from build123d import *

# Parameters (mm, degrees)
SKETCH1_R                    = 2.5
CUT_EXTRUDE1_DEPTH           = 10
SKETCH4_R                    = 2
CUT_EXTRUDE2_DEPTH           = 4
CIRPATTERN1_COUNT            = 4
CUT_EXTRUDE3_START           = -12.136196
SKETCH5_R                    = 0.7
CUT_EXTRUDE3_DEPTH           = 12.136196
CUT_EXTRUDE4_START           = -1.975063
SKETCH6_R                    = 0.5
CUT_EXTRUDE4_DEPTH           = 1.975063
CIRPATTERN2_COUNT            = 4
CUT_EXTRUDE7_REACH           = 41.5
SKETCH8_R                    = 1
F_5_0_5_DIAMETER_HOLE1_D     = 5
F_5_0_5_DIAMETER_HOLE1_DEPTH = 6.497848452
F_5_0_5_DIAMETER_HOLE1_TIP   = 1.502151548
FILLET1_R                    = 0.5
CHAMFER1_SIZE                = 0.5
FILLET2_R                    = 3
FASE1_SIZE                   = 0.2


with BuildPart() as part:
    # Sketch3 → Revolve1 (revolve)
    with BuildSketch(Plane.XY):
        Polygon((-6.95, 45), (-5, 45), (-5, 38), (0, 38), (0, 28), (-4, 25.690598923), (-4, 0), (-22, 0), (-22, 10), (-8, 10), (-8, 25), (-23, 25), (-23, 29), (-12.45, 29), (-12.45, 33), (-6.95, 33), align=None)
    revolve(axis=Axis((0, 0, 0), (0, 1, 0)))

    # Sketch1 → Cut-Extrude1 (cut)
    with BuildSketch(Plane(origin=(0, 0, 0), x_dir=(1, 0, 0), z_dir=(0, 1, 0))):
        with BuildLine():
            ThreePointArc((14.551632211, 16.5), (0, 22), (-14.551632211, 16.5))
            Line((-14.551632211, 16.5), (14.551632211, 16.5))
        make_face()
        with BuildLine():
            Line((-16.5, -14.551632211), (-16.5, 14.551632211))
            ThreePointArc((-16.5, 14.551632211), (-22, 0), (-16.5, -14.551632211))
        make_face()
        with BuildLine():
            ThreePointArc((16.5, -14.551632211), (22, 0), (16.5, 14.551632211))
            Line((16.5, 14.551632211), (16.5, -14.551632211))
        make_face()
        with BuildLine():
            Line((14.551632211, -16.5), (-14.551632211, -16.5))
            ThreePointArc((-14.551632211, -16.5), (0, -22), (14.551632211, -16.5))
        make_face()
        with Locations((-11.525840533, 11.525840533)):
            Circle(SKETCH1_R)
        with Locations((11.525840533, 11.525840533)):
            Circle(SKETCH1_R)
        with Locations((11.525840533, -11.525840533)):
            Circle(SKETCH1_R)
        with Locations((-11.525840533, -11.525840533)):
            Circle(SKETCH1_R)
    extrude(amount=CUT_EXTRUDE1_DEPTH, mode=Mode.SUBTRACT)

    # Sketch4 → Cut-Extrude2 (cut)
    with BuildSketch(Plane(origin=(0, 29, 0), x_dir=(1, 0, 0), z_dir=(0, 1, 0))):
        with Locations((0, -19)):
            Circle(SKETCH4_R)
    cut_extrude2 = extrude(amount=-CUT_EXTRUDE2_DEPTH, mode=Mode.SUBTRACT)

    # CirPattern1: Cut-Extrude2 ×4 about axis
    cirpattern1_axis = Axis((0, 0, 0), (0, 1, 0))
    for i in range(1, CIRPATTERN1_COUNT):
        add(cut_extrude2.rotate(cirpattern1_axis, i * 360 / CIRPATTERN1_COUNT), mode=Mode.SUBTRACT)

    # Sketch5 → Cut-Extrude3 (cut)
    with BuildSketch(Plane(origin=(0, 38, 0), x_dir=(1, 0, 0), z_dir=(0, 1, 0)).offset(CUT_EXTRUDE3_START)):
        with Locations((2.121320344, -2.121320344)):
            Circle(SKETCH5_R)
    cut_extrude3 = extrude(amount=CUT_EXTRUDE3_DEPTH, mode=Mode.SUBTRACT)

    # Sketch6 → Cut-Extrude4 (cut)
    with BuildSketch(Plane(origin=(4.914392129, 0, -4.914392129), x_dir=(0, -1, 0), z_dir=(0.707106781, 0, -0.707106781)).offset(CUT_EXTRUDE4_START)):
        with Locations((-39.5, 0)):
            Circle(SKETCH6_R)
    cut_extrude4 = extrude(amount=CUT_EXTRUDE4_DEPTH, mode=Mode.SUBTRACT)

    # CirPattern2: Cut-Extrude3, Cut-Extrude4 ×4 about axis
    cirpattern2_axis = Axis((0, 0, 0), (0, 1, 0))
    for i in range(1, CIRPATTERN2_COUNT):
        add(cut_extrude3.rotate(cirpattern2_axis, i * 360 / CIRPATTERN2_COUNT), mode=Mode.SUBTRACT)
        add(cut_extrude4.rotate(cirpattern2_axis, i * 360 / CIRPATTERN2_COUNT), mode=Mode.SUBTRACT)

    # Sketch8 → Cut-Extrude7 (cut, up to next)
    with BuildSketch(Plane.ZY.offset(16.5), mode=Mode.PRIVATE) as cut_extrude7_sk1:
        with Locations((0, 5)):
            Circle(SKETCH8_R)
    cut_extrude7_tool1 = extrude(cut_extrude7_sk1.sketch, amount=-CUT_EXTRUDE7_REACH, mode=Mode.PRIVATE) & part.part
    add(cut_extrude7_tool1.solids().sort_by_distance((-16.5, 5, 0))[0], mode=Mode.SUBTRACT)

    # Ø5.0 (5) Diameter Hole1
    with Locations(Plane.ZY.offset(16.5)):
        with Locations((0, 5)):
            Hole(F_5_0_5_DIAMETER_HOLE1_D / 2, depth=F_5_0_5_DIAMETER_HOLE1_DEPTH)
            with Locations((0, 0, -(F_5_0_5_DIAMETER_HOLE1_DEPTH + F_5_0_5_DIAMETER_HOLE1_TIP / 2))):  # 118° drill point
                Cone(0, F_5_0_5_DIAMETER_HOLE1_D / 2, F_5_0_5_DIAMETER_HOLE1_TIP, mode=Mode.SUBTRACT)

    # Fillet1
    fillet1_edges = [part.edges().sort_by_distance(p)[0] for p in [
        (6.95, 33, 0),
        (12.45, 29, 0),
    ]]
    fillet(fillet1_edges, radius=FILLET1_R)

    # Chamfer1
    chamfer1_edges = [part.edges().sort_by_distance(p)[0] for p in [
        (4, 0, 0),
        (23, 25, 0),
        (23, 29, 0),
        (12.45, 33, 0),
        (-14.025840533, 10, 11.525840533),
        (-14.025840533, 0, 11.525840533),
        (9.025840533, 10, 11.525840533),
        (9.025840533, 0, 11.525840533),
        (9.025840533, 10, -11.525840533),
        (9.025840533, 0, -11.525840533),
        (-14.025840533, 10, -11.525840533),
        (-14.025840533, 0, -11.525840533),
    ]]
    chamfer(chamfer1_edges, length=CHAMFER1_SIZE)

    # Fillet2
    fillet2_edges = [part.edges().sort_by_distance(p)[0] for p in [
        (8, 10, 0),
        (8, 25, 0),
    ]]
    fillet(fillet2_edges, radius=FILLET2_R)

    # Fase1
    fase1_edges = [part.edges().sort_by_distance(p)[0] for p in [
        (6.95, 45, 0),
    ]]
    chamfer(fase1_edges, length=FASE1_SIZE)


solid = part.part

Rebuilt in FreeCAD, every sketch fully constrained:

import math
import FreeCAD as App
import Part
import Sketcher
from FreeCAD import Vector
Q = App.Units.Quantity


def edges_at(feature, points):
    """Names of the edges that pass closest to the given points."""
    edges = feature.Shape.Edges
    near = lambda p: min(range(len(edges)), key=lambda i: edges[i].distToShape(Part.Vertex(*p))[0])
    return sorted({f"Edge{near(p) + 1}" for p in points})


def add_polygon(sketch, points):
    """Adds a closed chain of lines whose ends are joined by coincident constraints."""
    first, n = sketch.GeometryCount, len(points)
    for a, b in zip(points, points[1:] + points[:1]):
        sketch.addGeometry(Part.LineSegment(App.Vector(*a, 0), App.Vector(*b, 0)), False)
    for i in range(n):
        sketch.addConstraint(Sketcher.Constraint("Coincident", first + i, 2, first + (i + 1) % n, 1))

doc = App.newDocument("Part")
body = doc.addObject("PartDesign::Body", "Body")

# Sketch on XY plane
sketch1 = body.newObject("Sketcher::SketchObject", "Sketch")
sketch1.AttachmentSupport = (doc.getObject("XY_Plane"), [""])
sketch1.MapMode = "FlatFace"
add_polygon(sketch1, [(-5, 45), (-6.95, 45), (-6.95, 33), (-12.45, 33), (-12.45, 29), (-23, 29), (-23, 25), (-8, 25), (-8, 10), (-22, 10), (-22, 0), (-4, 0), (-4, 25.690599), (0, 28), (0, 38), (-5, 38)])  # lines 0-15
sketch1.addConstraint([
    Sketcher.Constraint("Horizontal", 0),
    Sketcher.Constraint("Vertical", 1),
    Sketcher.Constraint("Horizontal", 2),
    Sketcher.Constraint("Vertical", 3),
    Sketcher.Constraint("Horizontal", 4),
    Sketcher.Constraint("Vertical", 5),
    Sketcher.Constraint("Horizontal", 6),
    Sketcher.Constraint("Vertical", 7),
    Sketcher.Constraint("Horizontal", 8),
    Sketcher.Constraint("Vertical", 9),
    Sketcher.Constraint("Horizontal", 10),
    Sketcher.Constraint("Vertical", 11),
    Sketcher.Constraint("Vertical", 13),
    Sketcher.Constraint("Horizontal", 14),
    Sketcher.Constraint("Vertical", 15),
    Sketcher.Constraint("PointOnObject", 9, 2, -1),
    Sketcher.Constraint("PointOnObject", 12, 2, -2),
    Sketcher.Constraint("Equal", 3, 5),
    Sketcher.Constraint("Equal", 6, 7),
    Sketcher.Constraint("Equal", 9, 13),
    Sketcher.Constraint("DistanceX", 6, 1, 6, 2, 15.0),
    Sketcher.Constraint("DistanceX", 8, 2, 8, 1, 14.0),
    Sketcher.Constraint("DistanceX", 10, 1, 10, 2, 18.0),
    Sketcher.Constraint("DistanceX", 14, 2, 14, 1, 5.0),
    Sketcher.Constraint("DistanceY", 1, 2, 1, 1, 12.0),
    Sketcher.Constraint("DistanceY", 3, 2, 3, 1, 4.0),
    Sketcher.Constraint("DistanceY", 9, 2, 9, 1, 10.0),
    Sketcher.Constraint("DistanceY", 15, 1, 15, 2, 7.0),
    Sketcher.Constraint("Angle", 12, Q("30 deg")),
    Sketcher.Constraint("DistanceX", 2, 2, 2, 1, 5.5),
    Sketcher.Constraint("DistanceX", 4, 2, -1, 1, 23.0),
    Sketcher.Constraint("DistanceX", 0, 2, 0, 1, 1.95),
])
revolution = body.newObject("PartDesign::Revolution", "Revolution")
revolution.Profile = sketch1
revolution.ReferenceAxis = (sketch1, ["V_Axis"])
revolution.Angle = 360

# Sketch on XZ plane
sketch2 = body.newObject("Sketcher::SketchObject", "Sketch001")
sketch2.AttachmentSupport = (doc.getObject("XZ_Plane"), [""])
sketch2.MapMode = "FlatFace"
sketch2.addGeometry([
    Part.ArcOfCircle(Part.Circle(Vector(0, 0, 0), Vector(0, 0, 1), 22), math.radians(-131.409622), math.radians(-48.590378)),  # 0
    Part.LineSegment(Vector(-14.551632, -16.5, 0), Vector(14.551632, -16.5, 0)),  # 1
    Part.LineSegment(Vector(-16.5, 14.551632, 0), Vector(-16.5, -14.551632, 0)),  # 2
    Part.ArcOfCircle(Part.Circle(Vector(0, 0, 0), Vector(0, 0, 1), 22), math.radians(138.590378), math.radians(221.409622)),  # 3
    Part.ArcOfCircle(Part.Circle(Vector(0, 0, 0), Vector(0, 0, 1), 22), math.radians(-41.409622), math.radians(41.409622)),  # 4
    Part.LineSegment(Vector(16.5, -14.551632, 0), Vector(16.5, 14.551632, 0)),  # 5
    Part.LineSegment(Vector(14.551632, 16.5, 0), Vector(-14.551632, 16.5, 0)),  # 6
    Part.ArcOfCircle(Part.Circle(Vector(0, 0, 0), Vector(0, 0, 1), 22), math.radians(48.590378), math.radians(131.409622)),  # 7
    Part.Circle(Vector(-11.525841, -11.525841, 0), Vector(0, 0, 1), 2.5),  # 8
    Part.Circle(Vector(11.525841, -11.525841, 0), Vector(0, 0, 1), 2.5),  # 9
    Part.Circle(Vector(11.525841, 11.525841, 0), Vector(0, 0, 1), 2.5),  # 10
    Part.Circle(Vector(-11.525841, 11.525841, 0), Vector(0, 0, 1), 2.5),  # 11
], False)
sketch2.addConstraint([
    Sketcher.Constraint("Coincident", 0, 1, 1, 1),
    Sketcher.Constraint("Coincident", 1, 2, 0, 2),
    Sketcher.Constraint("Coincident", 2, 1, 3, 1),
    Sketcher.Constraint("Coincident", 3, 2, 2, 2),
    Sketcher.Constraint("Coincident", 4, 1, 5, 1),
    Sketcher.Constraint("Coincident", 5, 2, 4, 2),
    Sketcher.Constraint("Coincident", 6, 1, 7, 1),
    Sketcher.Constraint("Coincident", 7, 2, 6, 2),
    Sketcher.Constraint("Horizontal", 1),
    Sketcher.Constraint("Vertical", 2),
    Sketcher.Constraint("Vertical", 5),
    Sketcher.Constraint("Horizontal", 6),
    Sketcher.Constraint("Coincident", 0, 3, -1, 1),
    Sketcher.Constraint("Coincident", 3, 3, -1, 1),
    Sketcher.Constraint("Coincident", 4, 3, -1, 1),
    Sketcher.Constraint("Coincident", 7, 3, -1, 1),
    Sketcher.Constraint("Equal", 0, 3),
    Sketcher.Constraint("Equal", 3, 4),
    Sketcher.Constraint("Equal", 4, 7),
    Sketcher.Constraint("Equal", 8, 9),
    Sketcher.Constraint("Equal", 9, 10),
    Sketcher.Constraint("Equal", 10, 11),
    Sketcher.Constraint("Symmetric", 8, 3, 10, 3, -1, 1),
    Sketcher.Constraint("Symmetric", 9, 3, 11, 3, -1, 1),
    Sketcher.Constraint("Symmetric", 8, 3, 9, 3, -2),
    Sketcher.Constraint("Horizontal", 3, 2, 4, 1),
    Sketcher.Constraint("Vertical", 1, 2, 6, 1),
    Sketcher.Constraint("Equal", 6, 2),
    Sketcher.Constraint("Diameter", 8, 5.0),
    Sketcher.Constraint("Radius", 0, 22.0),
    Sketcher.Constraint("DistanceY", 0, 1, -1, 1, 16.5),
    Sketcher.Constraint("DistanceX", 8, 3, -1, 1, 11.525841),
    Sketcher.Constraint("DistanceY", 8, 3, -1, 1, 11.525841),
])
pocket1 = body.newObject("PartDesign::Pocket", "Pocket")
pocket1.Profile = sketch2
pocket1.Length = 10

# Sketch on XZ plane
sketch3 = body.newObject("Sketcher::SketchObject", "Sketch002")
sketch3.AttachmentSupport = (doc.getObject("XZ_Plane"), [""])
sketch3.MapMode = "FlatFace"
sketch3.AttachmentOffset = App.Placement(Vector(0, 0, -29), App.Rotation())
sketch3.addGeometry(Part.Circle(Vector(0, 19, 0), Vector(0, 0, 1), 2), False)
sketch3.addConstraint([
    Sketcher.Constraint("PointOnObject", 0, 3, -2),
    Sketcher.Constraint("Diameter", 0, 4.0),
    Sketcher.Constraint("DistanceY", -1, 1, 0, 3, 19.0),
])
pocket2 = body.newObject("PartDesign::Pocket", "Pocket001")
pocket2.Profile = sketch3
pocket2.Length = 4
pocket2.Reversed = True
doc.recompute()

polarpattern = body.newObject("PartDesign::PolarPattern", "PolarPattern")
polarpattern.Originals = [pocket2]
polarpattern.Axis = (doc.getObject("Y_Axis"), [""])
polarpattern.Angle = 360
polarpattern.Occurrences = 4
body.Tip = polarpattern

# Sketch on XZ plane
sketch4 = body.newObject("Sketcher::SketchObject", "Sketch003")
sketch4.AttachmentSupport = (doc.getObject("XZ_Plane"), [""])
sketch4.MapMode = "FlatFace"
sketch4.AttachmentOffset = App.Placement(Vector(0, 0, -25.863804), App.Rotation())
sketch4.addGeometry(Part.Circle(Vector(2.12132, 2.12132, 0), Vector(0, 0, 1), 0.7), False)
sketch4.addConstraint([
    Sketcher.Constraint("Diameter", 0, 1.4),
    Sketcher.Constraint("DistanceX", -1, 1, 0, 3, 2.12132),
    Sketcher.Constraint("DistanceY", -1, 1, 0, 3, 2.12132),
])
pocket3 = body.newObject("PartDesign::Pocket", "Pocket002")
pocket3.Profile = sketch4
pocket3.Length = 12.136196

# Sketch on an angled plane
sketch5 = body.newObject("Sketcher::SketchObject", "Sketch004")
sketch5.Placement = App.Placement(Vector(3.517812, 0, -3.517812), App.Rotation(Vector(0, -1, 0), Vector(-0.707106781, 0, -0.707106781), Vector(0.707106781, 0, -0.707106781), "ZXY"))
sketch5.addGeometry(Part.Circle(Vector(-39.5, 0, 0), Vector(0, 0, 1), 0.5), False)
sketch5.addConstraint([
    Sketcher.Constraint("PointOnObject", 0, 3, -1),
    Sketcher.Constraint("Diameter", 0, 1.0),
    Sketcher.Constraint("DistanceX", 0, 3, -1, 1, 39.5),
])
pocket4 = body.newObject("PartDesign::Pocket", "Pocket003")
pocket4.Profile = sketch5
pocket4.Length = 1.975063
pocket4.Reversed = True
doc.recompute()

polarpattern2 = body.newObject("PartDesign::PolarPattern", "PolarPattern001")
polarpattern2.Originals = [pocket3, pocket4]
polarpattern2.Axis = (doc.getObject("Y_Axis"), [""])
polarpattern2.Angle = 360
polarpattern2.Occurrences = 4
body.Tip = polarpattern2

# Sketch on YZ plane
sketch6 = body.newObject("Sketcher::SketchObject", "Sketch005")
sketch6.AttachmentSupport = (doc.getObject("YZ_Plane"), [""])
sketch6.MapMode = "FlatFace"
sketch6.AttachmentOffset = App.Placement(Vector(0, 0, -16.5), App.Rotation())
sketch6.addGeometry(Part.Circle(Vector(5, 0, 0), Vector(0, 0, 1), 1), False)
sketch6.addConstraint([
    Sketcher.Constraint("PointOnObject", 0, 3, -1),
    Sketcher.Constraint("Diameter", 0, 2.0),
    Sketcher.Constraint("DistanceX", -1, 1, 0, 3, 5.0),
])
pocket5 = body.newObject("PartDesign::Pocket", "Pocket004")
pocket5.Profile = sketch6
pocket5.Length = 12.627017
pocket5.Reversed = True

# Sketch on YZ plane
sketch7 = body.newObject("Sketcher::SketchObject", "Sketch006")
sketch7.AttachmentSupport = (doc.getObject("YZ_Plane"), [""])
sketch7.MapMode = "FlatFace"
sketch7.AttachmentOffset = App.Placement(Vector(0, 0, -16.5), App.Rotation())
sketch7.addGeometry(Part.Circle(Vector(5, 0, 0), Vector(0, 0, 1), 2.5), False)
sketch7.addConstraint([
    Sketcher.Constraint("PointOnObject", 0, 3, -1),
    Sketcher.Constraint("Diameter", 0, 5.0),
    Sketcher.Constraint("DistanceX", -1, 1, 0, 3, 5.0),
])
doc.recompute()
hole = body.newObject("PartDesign::Hole", "Hole")
hole.Profile = sketch7
hole.ThreadType = "None"
hole.Diameter = 5
hole.DepthType = "Dimension"
hole.Depth = 6.497848
hole.DrillPoint = "Angled"
hole.DrillPointAngle = 118
hole.Reversed = True
doc.recompute()

fillet = body.newObject("PartDesign::Fillet", "Fillet")
fillet.Base = (hole, edges_at(hole, [(6.95, 33, 0), (12.45, 29, 0)]))
fillet.Radius = 0.5
doc.recompute()

chamfer = body.newObject("PartDesign::Chamfer", "Chamfer")
chamfer.Base = (fillet, edges_at(fillet, [
    (4, 0, 0),
    (23, 25, 0),
    (23, 29, 0),
    (12.45, 33, 0),
    (-14.026, 10, 11.526),
    (-14.026, 0, 11.526),
    (9.026, 10, 11.526),
    (9.026, 0, 11.526),
    (9.026, 10, -11.526),
    (9.026, 0, -11.526),
    (-14.026, 10, -11.526),
    (-14.026, 0, -11.526),
]))
chamfer.Size = 0.5
doc.recompute()

fillet2 = body.newObject("PartDesign::Fillet", "Fillet001")
fillet2.Base = (chamfer, edges_at(chamfer, [(8, 10, 0), (8, 25, 0)]))
fillet2.Radius = 3
doc.recompute()

chamfer2 = body.newObject("PartDesign::Chamfer", "Chamfer001")
chamfer2.Base = (fillet2, edges_at(fillet2, [(6.95, 45, 0)]))
chamfer2.Size = 0.2

doc.recompute()
